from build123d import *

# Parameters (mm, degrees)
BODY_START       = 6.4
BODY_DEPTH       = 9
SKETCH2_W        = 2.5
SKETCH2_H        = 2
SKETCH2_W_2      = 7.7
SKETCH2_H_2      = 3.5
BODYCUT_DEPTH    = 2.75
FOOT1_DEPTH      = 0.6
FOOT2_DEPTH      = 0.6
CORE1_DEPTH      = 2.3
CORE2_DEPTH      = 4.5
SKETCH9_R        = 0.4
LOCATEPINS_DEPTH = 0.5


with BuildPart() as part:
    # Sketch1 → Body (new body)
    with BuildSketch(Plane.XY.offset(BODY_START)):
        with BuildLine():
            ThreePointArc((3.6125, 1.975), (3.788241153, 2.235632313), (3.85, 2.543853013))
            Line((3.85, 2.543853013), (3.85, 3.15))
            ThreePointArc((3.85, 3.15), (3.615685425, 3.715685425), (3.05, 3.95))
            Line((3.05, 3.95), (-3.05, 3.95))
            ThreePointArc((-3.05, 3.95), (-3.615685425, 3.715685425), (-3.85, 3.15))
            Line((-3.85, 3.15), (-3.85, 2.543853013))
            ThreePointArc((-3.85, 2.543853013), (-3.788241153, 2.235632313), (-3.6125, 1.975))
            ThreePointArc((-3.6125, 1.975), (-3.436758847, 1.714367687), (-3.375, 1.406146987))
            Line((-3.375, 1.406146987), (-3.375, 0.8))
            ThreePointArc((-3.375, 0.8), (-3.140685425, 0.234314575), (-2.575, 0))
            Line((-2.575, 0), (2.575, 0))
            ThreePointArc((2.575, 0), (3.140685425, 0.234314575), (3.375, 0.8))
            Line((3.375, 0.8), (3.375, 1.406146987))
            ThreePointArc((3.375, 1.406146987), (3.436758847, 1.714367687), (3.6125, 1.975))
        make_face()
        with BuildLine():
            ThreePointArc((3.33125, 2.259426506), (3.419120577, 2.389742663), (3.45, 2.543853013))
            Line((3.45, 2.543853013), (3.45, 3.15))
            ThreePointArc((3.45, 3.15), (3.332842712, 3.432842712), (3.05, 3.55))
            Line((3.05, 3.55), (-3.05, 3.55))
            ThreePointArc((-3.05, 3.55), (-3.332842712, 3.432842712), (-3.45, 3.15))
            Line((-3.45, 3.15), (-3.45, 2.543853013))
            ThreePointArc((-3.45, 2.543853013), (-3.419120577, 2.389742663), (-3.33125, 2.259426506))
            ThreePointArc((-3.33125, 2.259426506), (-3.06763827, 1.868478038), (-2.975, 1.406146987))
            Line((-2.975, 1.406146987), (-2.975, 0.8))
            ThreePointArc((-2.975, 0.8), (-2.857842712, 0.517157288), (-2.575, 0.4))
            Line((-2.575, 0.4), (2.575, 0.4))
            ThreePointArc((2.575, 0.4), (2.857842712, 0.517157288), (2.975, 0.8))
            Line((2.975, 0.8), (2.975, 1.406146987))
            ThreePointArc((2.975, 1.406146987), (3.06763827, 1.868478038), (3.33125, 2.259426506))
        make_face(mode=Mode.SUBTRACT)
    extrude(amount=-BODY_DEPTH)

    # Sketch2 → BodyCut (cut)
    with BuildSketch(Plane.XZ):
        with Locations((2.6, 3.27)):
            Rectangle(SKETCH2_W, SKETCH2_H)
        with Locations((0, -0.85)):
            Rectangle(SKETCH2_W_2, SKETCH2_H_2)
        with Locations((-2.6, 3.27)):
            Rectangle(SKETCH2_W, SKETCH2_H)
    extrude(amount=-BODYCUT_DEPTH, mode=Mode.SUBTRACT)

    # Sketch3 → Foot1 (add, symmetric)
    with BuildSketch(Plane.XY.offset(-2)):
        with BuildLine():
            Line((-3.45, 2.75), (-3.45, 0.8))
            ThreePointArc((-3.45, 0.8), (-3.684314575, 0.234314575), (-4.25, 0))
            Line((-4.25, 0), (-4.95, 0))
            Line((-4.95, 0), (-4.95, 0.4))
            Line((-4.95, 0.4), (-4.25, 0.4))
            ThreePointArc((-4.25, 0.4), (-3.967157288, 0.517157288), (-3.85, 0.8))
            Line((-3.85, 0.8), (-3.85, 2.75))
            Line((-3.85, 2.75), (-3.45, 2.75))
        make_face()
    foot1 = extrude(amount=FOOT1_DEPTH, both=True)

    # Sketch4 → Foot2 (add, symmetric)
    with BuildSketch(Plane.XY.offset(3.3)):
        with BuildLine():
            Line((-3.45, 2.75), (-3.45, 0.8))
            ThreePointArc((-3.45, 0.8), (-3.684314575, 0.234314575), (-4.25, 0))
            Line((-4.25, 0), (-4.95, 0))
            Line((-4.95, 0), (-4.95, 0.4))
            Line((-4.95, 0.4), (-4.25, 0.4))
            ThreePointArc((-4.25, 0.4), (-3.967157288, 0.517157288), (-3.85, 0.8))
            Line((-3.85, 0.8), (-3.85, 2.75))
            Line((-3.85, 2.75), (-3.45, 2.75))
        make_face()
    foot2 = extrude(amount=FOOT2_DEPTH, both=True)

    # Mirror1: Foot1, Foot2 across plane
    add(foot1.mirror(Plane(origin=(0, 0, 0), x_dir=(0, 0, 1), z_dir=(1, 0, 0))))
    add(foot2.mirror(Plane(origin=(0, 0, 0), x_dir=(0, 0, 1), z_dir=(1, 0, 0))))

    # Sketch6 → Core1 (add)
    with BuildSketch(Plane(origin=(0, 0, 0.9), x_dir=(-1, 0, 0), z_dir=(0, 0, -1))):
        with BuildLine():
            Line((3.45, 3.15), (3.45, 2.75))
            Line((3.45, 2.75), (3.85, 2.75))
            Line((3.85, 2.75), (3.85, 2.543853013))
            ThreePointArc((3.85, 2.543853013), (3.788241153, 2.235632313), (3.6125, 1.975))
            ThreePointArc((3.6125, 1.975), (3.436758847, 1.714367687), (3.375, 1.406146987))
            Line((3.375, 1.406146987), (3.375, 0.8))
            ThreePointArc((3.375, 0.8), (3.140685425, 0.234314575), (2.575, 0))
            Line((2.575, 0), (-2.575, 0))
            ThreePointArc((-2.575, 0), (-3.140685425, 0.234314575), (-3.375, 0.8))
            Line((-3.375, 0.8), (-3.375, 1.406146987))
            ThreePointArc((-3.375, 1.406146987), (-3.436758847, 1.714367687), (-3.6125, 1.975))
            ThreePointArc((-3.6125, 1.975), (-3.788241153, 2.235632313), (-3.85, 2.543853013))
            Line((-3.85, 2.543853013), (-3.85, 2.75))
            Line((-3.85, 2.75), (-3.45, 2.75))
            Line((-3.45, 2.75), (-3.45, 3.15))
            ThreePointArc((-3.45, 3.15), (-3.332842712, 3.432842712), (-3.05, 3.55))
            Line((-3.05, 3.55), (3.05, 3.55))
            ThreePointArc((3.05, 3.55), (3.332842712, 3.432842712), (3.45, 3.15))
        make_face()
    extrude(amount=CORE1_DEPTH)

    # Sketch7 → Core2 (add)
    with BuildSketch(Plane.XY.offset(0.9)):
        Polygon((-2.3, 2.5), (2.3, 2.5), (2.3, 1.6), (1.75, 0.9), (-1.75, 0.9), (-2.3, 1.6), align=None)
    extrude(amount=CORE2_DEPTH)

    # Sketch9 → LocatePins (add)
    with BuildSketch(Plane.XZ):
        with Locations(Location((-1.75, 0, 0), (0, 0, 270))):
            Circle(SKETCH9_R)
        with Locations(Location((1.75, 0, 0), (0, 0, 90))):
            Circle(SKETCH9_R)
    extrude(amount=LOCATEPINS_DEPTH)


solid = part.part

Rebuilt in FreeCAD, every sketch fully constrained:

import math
import FreeCAD as App
import Part
import Sketcher
from FreeCAD import Vector
Q = App.Units.Quantity

doc = App.newDocument("Part")
params = doc.addObject("Spreadsheet::Sheet", "Params")
for row, (alias, value) in enumerate([
    ("sketch1_radius", "0.8 mm"),
    ("sketch1_radius2", "0.4 mm"),
    ("sketch1_width", "6.1 mm"),
    ("sketch1_width2", "5.15 mm"),
    ("pad1_length", "9 mm"),
    ("sketch2_height", "2 mm"),
    ("sketch2_width", "2.5 mm"),
    ("sketch2_width2", "7.7 mm"),
    ("sketch2_height2", "3.5 mm"),
    ("pocket1_length", "2.75 mm"),
    ("sketch3_radius", "0.4 mm"),
    ("sketch3_radius2", "0.8 mm"),
    ("sketch3_width", "0.7 mm"),
    ("sketch3_height", "1.95 mm"),
    ("pad2_length", "1.2 mm"),
    ("sketch4_radius", "0.4 mm"),
    ("sketch4_radius2", "0.8 mm"),
    ("sketch4_width", "0.7 mm"),
    ("sketch4_height", "1.95 mm"),
    ("pad3_length", "1.2 mm"),
    ("sketch5_radius", "0.4 mm"),
    ("sketch5_radius2", "0.8 mm"),
    ("sketch5_width", "6.1 mm"),
    ("sketch5_width2", "5.15 mm"),
    ("pad4_length", "2.3 mm"),
    ("sketch6_width", "4.6 mm"),
    ("sketch6_width2", "3.5 mm"),
    ("sketch6_height", "0.9 mm"),
    ("pad5_length", "4.5 mm"),
    ("sketch7_diameter", "0.8 mm"),
    ("pad6_length", "0.5 mm"),
], start=1):
    params.set(f"A{row}", alias)
    params.set(f"B{row}", "=" + value)
    params.setAlias(f"B{row}", alias)

body = doc.addObject("PartDesign::Body", "Body")

sketch1 = doc.addObject("Sketcher::SketchObject", "Sketch")
body.addObject(sketch1)
sketch1.AttachmentSupport = (doc.XY_Plane, [""])
sketch1.MapMode = "FlatFace"
sketch1.AttachmentOffset = App.Placement(Vector(0, 0, 6.4), App.Rotation())
sketch1.addGeometry(Part.ArcOfCircle(Part.Circle(Vector(3.05, 2.543853, 0), Vector(0, 0, 1), 0.8), math.radians(-45.321736), math.radians(0)), False)
sketch1.addGeometry(Part.LineSegment(Vector(3.85, 2.543853, 0), Vector(3.85, 3.15, 0)), False)
sketch1.addGeometry(Part.ArcOfCircle(Part.Circle(Vector(3.05, 3.15, 0), Vector(0, 0, 1), 0.8), math.radians(0), math.radians(90)), False)
sketch1.addGeometry(Part.LineSegment(Vector(3.05, 3.95, 0), Vector(-3.05, 3.95, 0)), False)
sketch1.addGeometry(Part.ArcOfCircle(Part.Circle(Vector(-3.05, 3.15, 0), Vector(0, 0, 1), 0.8), math.radians(90), math.radians(180)), False)
sketch1.addGeometry(Part.LineSegment(Vector(-3.85, 3.15, 0), Vector(-3.85, 2.543853, 0)), False)
sketch1.addGeometry(Part.ArcOfCircle(Part.Circle(Vector(-3.05, 2.543853, 0), Vector(0, 0, 1), 0.8), math.radians(-180), math.radians(-134.678264)), False)
sketch1.addGeometry(Part.ArcOfCircle(Part.Circle(Vector(-4.175, 1.406147, 0), Vector(0, 0, 1), 0.8), math.radians(0), math.radians(45.321736)), False)
sketch1.addGeometry(Part.LineSegment(Vector(-3.375, 1.406147, 0), Vector(-3.375, 0.8, 0)), False)
sketch1.addGeometry(Part.ArcOfCircle(Part.Circle(Vector(-2.575, 0.8, 0), Vector(0, 0, 1), 0.8), math.radians(180), math.radians(270)), False)
sketch1.addGeometry(Part.LineSegment(Vector(-2.575, 0, 0), Vector(2.575, 0, 0)), False)
sketch1.addGeometry(Part.ArcOfCircle(Part.Circle(Vector(2.575, 0.8, 0), Vector(0, 0, 1), 0.8), math.radians(-90), math.radians(0)), False)
sketch1.addGeometry(Part.LineSegment(Vector(3.375, 0.8, 0), Vector(3.375, 1.406147, 0)), False)
sketch1.addGeometry(Part.ArcOfCircle(Part.Circle(Vector(4.175, 1.406147, 0), Vector(0, 0, 1), 0.8), math.radians(134.678264), math.radians(180)), False)
sketch1.addGeometry(Part.ArcOfCircle(Part.Circle(Vector(3.05, 2.543853, 0), Vector(0, 0, 1), 0.4), math.radians(-45.321736), math.radians(0)), False)
sketch1.addGeometry(Part.ArcOfCircle(Part.Circle(Vector(4.175, 1.406147, 0), Vector(0, 0, 1), 1.2), math.radians(134.678264), math.radians(180)), False)
sketch1.addGeometry(Part.LineSegment(Vector(2.975, 1.406147, 0), Vector(2.975, 0.8, 0)), False)
sketch1.addGeometry(Part.ArcOfCircle(Part.Circle(Vector(2.575, 0.8, 0), Vector(0, 0, 1), 0.4), math.radians(-90), math.radians(0)), False)
sketch1.addGeometry(Part.LineSegment(Vector(2.575, 0.4, 0), Vector(-2.575, 0.4, 0)), False)
sketch1.addGeometry(Part.ArcOfCircle(Part.Circle(Vector(-2.575, 0.8, 0), Vector(0, 0, 1), 0.4), math.radians(-180), math.radians(-90)), False)
sketch1.addGeometry(Part.LineSegment(Vector(-2.975, 0.8, 0), Vector(-2.975, 1.406147, 0)), False)
sketch1.addGeometry(Part.ArcOfCircle(Part.Circle(Vector(-4.175, 1.406147, 0), Vector(0, 0, 1), 1.2), math.radians(0), math.radians(45.321736)), False)
sketch1.addGeometry(Part.ArcOfCircle(Part.Circle(Vector(-3.05, 2.543853, 0), Vector(0, 0, 1), 0.4), math.radians(180), math.radians(225.321736)), False)
sketch1.addGeometry(Part.LineSegment(Vector(-3.45, 2.543853, 0), Vector(-3.45, 3.15, 0)), False)
sketch1.addGeometry(Part.ArcOfCircle(Part.Circle(Vector(-3.05, 3.15, 0), Vector(0, 0, 1), 0.4), math.radians(90), math.radians(180)), False)
sketch1.addGeometry(Part.LineSegment(Vector(-3.05, 3.55, 0), Vector(3.05, 3.55, 0)), False)
sketch1.addGeometry(Part.ArcOfCircle(Part.Circle(Vector(3.05, 3.15, 0), Vector(0, 0, 1), 0.4), math.radians(0), math.radians(90)), False)
sketch1.addGeometry(Part.LineSegment(Vector(3.45, 3.15, 0), Vector(3.45, 2.543853, 0)), False)
sketch1.addConstraint(Sketcher.Constraint("Tangent", 0, 2, 1, 1))
sketch1.addConstraint(Sketcher.Constraint("Tangent", 1, 2, 2, 1))
sketch1.addConstraint(Sketcher.Constraint("Tangent", 2, 2, 3, 1))
sketch1.addConstraint(Sketcher.Constraint("Tangent", 3, 2, 4, 1))
sketch1.addConstraint(Sketcher.Constraint("Tangent", 4, 2, 5, 1))
sketch1.addConstraint(Sketcher.Constraint("Tangent", 5, 2, 6, 1))
sketch1.addConstraint(Sketcher.Constraint("Tangent", 6, 2, 7, 2))
sketch1.addConstraint(Sketcher.Constraint("Tangent", 7, 1, 8, 1))
sketch1.addConstraint(Sketcher.Constraint("Tangent", 8, 2, 9, 1))
sketch1.addConstraint(Sketcher.Constraint("Tangent", 9, 2, 10, 1))
sketch1.addConstraint(Sketcher.Constraint("Tangent", 10, 2, 11, 1))
sketch1.addConstraint(Sketcher.Constraint("Tangent", 11, 2, 12, 1))
sketch1.addConstraint(Sketcher.Constraint("Tangent", 12, 2, 13, 2))
sketch1.addConstraint(Sketcher.Constraint("Tangent", 13, 1, 0, 1))
sketch1.addConstraint(Sketcher.Constraint("Tangent", 14, 1, 15, 1))
sketch1.addConstraint(Sketcher.Constraint("Tangent", 15, 2, 16, 1))
sketch1.addConstraint(Sketcher.Constraint("Tangent", 16, 2, 17, 2))
sketch1.addConstraint(Sketcher.Constraint("Tangent", 17, 1, 18, 1))
sketch1.addConstraint(Sketcher.Constraint("Tangent", 18, 2, 19, 2))
sketch1.addConstraint(Sketcher.Constraint("Tangent", 19, 1, 20, 1))
sketch1.addConstraint(Sketcher.Constraint("Tangent", 20, 2, 21, 1))
sketch1.addConstraint(Sketcher.Constraint("Tangent", 21, 2, 22, 2))
sketch1.addConstraint(Sketcher.Constraint("Tangent", 22, 1, 23, 1))
sketch1.addConstraint(Sketcher.Constraint("Tangent", 23, 2, 24, 2))
sketch1.addConstraint(Sketcher.Constraint("Tangent", 24, 1, 25, 1))
sketch1.addConstraint(Sketcher.Constraint("Tangent", 25, 2, 26, 2))
sketch1.addConstraint(Sketcher.Constraint("Tangent", 26, 1, 27, 1))
sketch1.addConstraint(Sketcher.Constraint("Tangent", 27, 2, 14, 2))
sketch1.addConstraint(Sketcher.Constraint("Vertical", 1))
sketch1.addConstraint(Sketcher.Constraint("Horizontal", 3))
sketch1.addConstraint(Sketcher.Constraint("Vertical", 5))
sketch1.addConstraint(Sketcher.Constraint("Vertical", 8))
sketch1.addConstraint(Sketcher.Constraint("Horizontal", 10))
sketch1.addConstraint(Sketcher.Constraint("Vertical", 12))
sketch1.addConstraint(Sketcher.Constraint("Vertical", 16))
sketch1.addConstraint(Sketcher.Constraint("Horizontal", 18))
sketch1.addConstraint(Sketcher.Constraint("Vertical", 20))
sketch1.addConstraint(Sketcher.Constraint("Vertical", 23))
sketch1.addConstraint(Sketcher.Constraint("Horizontal", 25))
sketch1.addConstraint(Sketcher.Constraint("Vertical", 27))
sketch1.addConstraint(Sketcher.Constraint("Coincident", 14, 3, 0, 3))
sketch1.addConstraint(Sketcher.Constraint("Coincident", 15, 3, 13, 3))
sketch1.addConstraint(Sketcher.Constraint("Coincident", 17, 3, 11, 3))
sketch1.addConstraint(Sketcher.Constraint("Coincident", 19, 3, 9, 3))
sketch1.addConstraint(Sketcher.Constraint("Coincident", 21, 3, 7, 3))
sketch1.addConstraint(Sketcher.Constraint("Coincident", 22, 3, 6, 3))
sketch1.addConstraint(Sketcher.Constraint("Coincident", 24, 3, 4, 3))
sketch1.addConstraint(Sketcher.Constraint("Equal", 0, 2))
sketch1.addConstraint(Sketcher.Constraint("Equal", 2, 4))
sketch1.addConstraint(Sketcher.Constraint("Equal", 4, 6))
sketch1.addConstraint(Sketcher.Constraint("Equal", 6, 7))
sketch1.addConstraint(Sketcher.Constraint("Equal", 7, 9))
sketch1.addConstraint(Sketcher.Constraint("Equal", 9, 11))
sketch1.addConstraint(Sketcher.Constraint("Equal", 11, 13))
sketch1.addConstraint(Sketcher.Constraint("Equal", 24, 26))
sketch1.addConstraint(Sketcher.Constraint("Symmetric", 9, 2, 10, 2, -1, 1))
sketch1.addConstraint(Sketcher.Constraint("Symmetric", 0, 3, 6, 3, -2))
sketch1.addConstraint(Sketcher.Constraint("Equal", 5, 8))
sketch1.addConstraint(Sketcher.Constraint("Radius", 0, Q("0.8 mm")))
sketch1.addConstraint(Sketcher.Constraint("Radius", 14, Q("0.4 mm")))
sketch1.addConstraint(Sketcher.Constraint("DistanceX", 3, 2, 3, 1, Q("6.1 mm")))
sketch1.addConstraint(Sketcher.Constraint("DistanceX", 10, 1, 10, 2, Q("5.15 mm")))
sketch1.addConstraint(Sketcher.Constraint("DistanceY", -1, 1, 2, 3, Q("3.15 mm")))
sketch1.setExpression("Constraints[58]", "Params.sketch1_radius")
sketch1.setExpression("Constraints[59]", "Params.sketch1_radius2")
sketch1.setExpression("Constraints[60]", "Params.sketch1_width")
sketch1.setExpression("Constraints[61]", "Params.sketch1_width2")
pad1 = doc.addObject("PartDesign::Pad", "Pad")
body.addObject(pad1)
pad1.Profile = sketch1
pad1.setExpression("Length", "Params.pad1_length")
pad1.Reversed = True

sketch2 = doc.addObject("Sketcher::SketchObject", "Sketch001")
body.addObject(sketch2)
sketch2.AttachmentSupport = (doc.XZ_Plane, [""])
sketch2.MapMode = "FlatFace"
sketch2.addGeometry(Part.LineSegment(Vector(1.35, 4.27, 0), Vector(1.35, 2.27, 0)), False)
sketch2.addGeometry(Part.LineSegment(Vector(1.35, 2.27, 0), Vector(3.85, 2.27, 0)), False)
sketch2.addGeometry(Part.LineSegment(Vector(3.85, 2.27, 0), Vector(3.85, 4.27, 0)), False)
sketch2.addGeometry(Part.LineSegment(Vector(3.85, 4.27, 0), Vector(1.35, 4.27, 0)), False)
sketch2.addGeometry(Part.LineSegment(Vector(-3.85, 0.9, 0), Vector(-3.85, -2.6, 0)), False)
sketch2.addGeometry(Part.LineSegment(Vector(-3.85, -2.6, 0), Vector(3.85, -2.6, 0)), False)
sketch2.addGeometry(Part.LineSegment(Vector(3.85, -2.6, 0), Vector(3.85, 0.9, 0)), False)
sketch2.addGeometry(Part.LineSegment(Vector(3.85, 0.9, 0), Vector(-3.85, 0.9, 0)), False)
sketch2.addGeometry(Part.LineSegment(Vector(-3.85, 4.27, 0), Vector(-3.85, 2.27, 0)), False)
sketch2.addGeometry(Part.LineSegment(Vector(-3.85, 2.27, 0), Vector(-1.35, 2.27, 0)), False)
sketch2.addGeometry(Part.LineSegment(Vector(-1.35, 2.27, 0), Vector(-1.35, 4.27, 0)), False)
sketch2.addGeometry(Part.LineSegment(Vector(-1.35, 4.27, 0), Vector(-3.85, 4.27, 0)), False)
sketch2.addConstraint(Sketcher.Constraint("Coincident", 0, 2, 1, 1))
sketch2.addConstraint(Sketcher.Constraint("Coincident", 1, 2, 2, 1))
sketch2.addConstraint(Sketcher.Constraint("Coincident", 2, 2, 3, 1))
sketch2.addConstraint(Sketcher.Constraint("Coincident", 3, 2, 0, 1))
sketch2.addConstraint(Sketcher.Constraint("Coincident", 4, 2, 5, 1))
sketch2.addConstraint(Sketcher.Constraint("Coincident", 5, 2, 6, 1))
sketch2.addConstraint(Sketcher.Constraint("Coincident", 6, 2, 7, 1))
sketch2.addConstraint(Sketcher.Constraint("Coincident", 7, 2, 4, 1))
sketch2.addConstraint(Sketcher.Constraint("Coincident", 8, 2, 9, 1))
sketch2.addConstraint(Sketcher.Constraint("Coincident", 9, 2, 10, 1))
sketch2.addConstraint(Sketcher.Constraint("Coincident", 10, 2, 11, 1))
sketch2.addConstraint(Sketcher.Constraint("Coincident", 11, 2, 8, 1))
sketch2.addConstraint(Sketcher.Constraint("Vertical", 0))
sketch2.addConstraint(Sketcher.Constraint("Horizontal", 1))
sketch2.addConstraint(Sketcher.Constraint("Vertical", 2))
sketch2.addConstraint(Sketcher.Constraint("Horizontal", 3))
sketch2.addConstraint(Sketcher.Constraint("Vertical", 4))
sketch2.addConstraint(Sketcher.Constraint("Horizontal", 5))
sketch2.addConstraint(Sketcher.Constraint("Vertical", 6))
sketch2.addConstraint(Sketcher.Constraint("Horizontal", 7))
sketch2.addConstraint(Sketcher.Constraint("Vertical", 8))
sketch2.addConstraint(Sketcher.Constraint("Horizontal", 9))
sketch2.addConstraint(Sketcher.Constraint("Vertical", 10))
sketch2.addConstraint(Sketcher.Constraint("Horizontal", 11))
sketch2.addConstraint(Sketcher.Constraint("Symmetric", 1, 2, 8, 2, -2))
sketch2.addConstraint(Sketcher.Constraint("Symmetric", 3, 2, 10, 2, -2))
sketch2.addConstraint(Sketcher.Constraint("Vertical", 2, 2, 5, 2))
sketch2.addConstraint(Sketcher.Constraint("Vertical", 7, 2, 8, 2))
sketch2.addConstraint(Sketcher.Constraint("DistanceY", 0, 2, 0, 1, Q("2 mm")))
sketch2.addConstraint(Sketcher.Constraint("DistanceX", 1, 1, 1, 2, Q("2.5 mm")))
sketch2.addConstraint(Sketcher.Constraint("DistanceX", 5, 1, 5, 2, Q("7.7 mm")))
sketch2.addConstraint(Sketcher.Constraint("DistanceY", 4, 2, 4, 1, Q("3.5 mm")))
sketch2.addConstraint(Sketcher.Constraint("DistanceY", 4, 2, -1, 1, Q("2.6 mm")))
sketch2.addConstraint(Sketcher.Constraint("DistanceY", -1, 1, 0, 2, Q("2.27 mm")))
sketch2.setExpression("Constraints[28]", "Params.sketch2_height")
sketch2.setExpression("Constraints[29]", "Params.sketch2_width")
sketch2.setExpression("Constraints[30]", "Params.sketch2_width2")
sketch2.setExpression("Constraints[31]", "Params.sketch2_height2")
pocket1 = doc.addObject("PartDesign::Pocket", "Pocket")
body.addObject(pocket1)
pocket1.Profile = sketch2
pocket1.setExpression("Length", "Params.pocket1_length")

sketch3 = doc.addObject("Sketcher::SketchObject", "Sketch002")
body.addObject(sketch3)
sketch3.AttachmentSupport = (doc.XY_Plane, [""])
sketch3.MapMode = "FlatFace"
sketch3.AttachmentOffset = App.Placement(Vector(0, 0, -2), App.Rotation())
sketch3.addGeometry(Part.LineSegment(Vector(-3.45, 0.8, 0), Vector(-3.45, 2.75, 0)), False)
sketch3.addGeometry(Part.LineSegment(Vector(-3.45, 2.75, 0), Vector(-3.85, 2.75, 0)), False)
sketch3.addGeometry(Part.LineSegment(Vector(-3.85, 2.75, 0), Vector(-3.85, 0.8, 0)), False)
sketch3.addGeometry(Part.ArcOfCircle(Part.Circle(Vector(-4.25, 0.8, 0), Vector(0, 0, 1), 0.4), math.radians(-90), math.radians(0)), False)
sketch3.addGeometry(Part.LineSegment(Vector(-4.25, 0.4, 0), Vector(-4.95, 0.4, 0)), False)
sketch3.addGeometry(Part.LineSegment(Vector(-4.95, 0.4, 0), Vector(-4.95, 0, 0)), False)
sketch3.addGeometry(Part.LineSegment(Vector(-4.95, 0, 0), Vector(-4.25, 0, 0)), False)
sketch3.addGeometry(Part.ArcOfCircle(Part.Circle(Vector(-4.25, 0.8, 0), Vector(0, 0, 1), 0.8), math.radians(-90), math.radians(0)), False)
sketch3.addConstraint(Sketcher.Constraint("Coincident", 0, 2, 1, 1))
sketch3.addConstraint(Sketcher.Constraint("Coincident", 1, 2, 2, 1))
sketch3.addConstraint(Sketcher.Constraint("Tangent", 2, 2, 3, 2))
sketch3.addConstraint(Sketcher.Constraint("Tangent", 3, 1, 4, 1))
sketch3.addConstraint(Sketcher.Constraint("Coincident", 4, 2, 5, 1))
sketch3.addConstraint(Sketcher.Constraint("Coincident", 5, 2, 6, 1))
sketch3.addConstraint(Sketcher.Constraint("Tangent", 6, 2, 7, 1))
sketch3.addConstraint(Sketcher.Constraint("Tangent", 7, 2, 0, 1))
sketch3.addConstraint(Sketcher.Constraint("Vertical", 0))
sketch3.addConstraint(Sketcher.Constraint("Horizontal", 1))
sketch3.addConstraint(Sketcher.Constraint("Vertical", 2))
sketch3.addConstraint(Sketcher.Constraint("Horizontal", 4))
sketch3.addConstraint(Sketcher.Constraint("Vertical", 5))
sketch3.addConstraint(Sketcher.Constraint("Horizontal", 6))
sketch3.addConstraint(Sketcher.Constraint("Coincident", 7, 3, 3, 3))
sketch3.addConstraint(Sketcher.Constraint("PointOnObject", 5, 2, -1))
sketch3.addConstraint(Sketcher.Constraint("Radius", 3, Q("0.4 mm")))
sketch3.addConstraint(Sketcher.Constraint("Radius", 7, Q("0.8 mm")))
sketch3.addConstraint(Sketcher.Constraint("DistanceX", 4, 2, 4, 1, Q("0.7 mm")))
sketch3.addConstraint(Sketcher.Constraint("DistanceY", 0, 1, 0, 2, Q("1.95 mm")))
sketch3.addConstraint(Sketcher.Constraint("DistanceX", 3, 3, -1, 1, Q("4.25 mm")))
sketch3.setExpression("Constraints[16]", "Params.sketch3_radius")
sketch3.setExpression("Constraints[17]", "Params.sketch3_radius2")
sketch3.setExpression("Constraints[18]", "Params.sketch3_width")
sketch3.setExpression("Constraints[19]", "Params.sketch3_height")
pad2 = doc.addObject("PartDesign::Pad", "Pad001")
body.addObject(pad2)
pad2.Profile = sketch3
pad2.setExpression("Length", "Params.pad2_length")
pad2.Midplane = True

sketch4 = doc.addObject("Sketcher::SketchObject", "Sketch003")
body.addObject(sketch4)
sketch4.AttachmentSupport = (doc.XY_Plane, [""])
sketch4.MapMode = "FlatFace"
sketch4.AttachmentOffset = App.Placement(Vector(0, 0, 3.3), App.Rotation())
sketch4.addGeometry(Part.LineSegment(Vector(-3.45, 0.8, 0), Vector(-3.45, 2.75, 0)), False)
sketch4.addGeometry(Part.LineSegment(Vector(-3.45, 2.75, 0), Vector(-3.85, 2.75, 0)), False)
sketch4.addGeometry(Part.LineSegment(Vector(-3.85, 2.75, 0), Vector(-3.85, 0.8, 0)), False)
sketch4.addGeometry(Part.ArcOfCircle(Part.Circle(Vector(-4.25, 0.8, 0), Vector(0, 0, 1), 0.4), math.radians(-90), math.radians(0)), False)
sketch4.addGeometry(Part.LineSegment(Vector(-4.25, 0.4, 0), Vector(-4.95, 0.4, 0)), False)
sketch4.addGeometry(Part.LineSegment(Vector(-4.95, 0.4, 0), Vector(-4.95, 0, 0)), False)
sketch4.addGeometry(Part.LineSegment(Vector(-4.95, 0, 0), Vector(-4.25, 0, 0)), False)
sketch4.addGeometry(Part.ArcOfCircle(Part.Circle(Vector(-4.25, 0.8, 0), Vector(0, 0, 1), 0.8), math.radians(-90), math.radians(0)), False)
sketch4.addConstraint(Sketcher.Constraint("Coincident", 0, 2, 1, 1))
sketch4.addConstraint(Sketcher.Constraint("Coincident", 1, 2, 2, 1))
sketch4.addConstraint(Sketcher.Constraint("Tangent", 2, 2, 3, 2))
sketch4.addConstraint(Sketcher.Constraint("Tangent", 3, 1, 4, 1))
sketch4.addConstraint(Sketcher.Constraint("Coincident", 4, 2, 5, 1))
sketch4.addConstraint(Sketcher.Constraint("Coincident", 5, 2, 6, 1))
sketch4.addConstraint(Sketcher.Constraint("Tangent", 6, 2, 7, 1))
sketch4.addConstraint(Sketcher.Constraint("Tangent", 7, 2, 0, 1))
sketch4.addConstraint(Sketcher.Constraint("Vertical", 0))
sketch4.addConstraint(Sketcher.Constraint("Horizontal", 1))
sketch4.addConstraint(Sketcher.Constraint("Vertical", 2))
sketch4.addConstraint(Sketcher.Constraint("Horizontal", 4))
sketch4.addConstraint(Sketcher.Constraint("Vertical", 5))
sketch4.addConstraint(Sketcher.Constraint("Horizontal", 6))
sketch4.addConstraint(Sketcher.Constraint("Coincident", 7, 3, 3, 3))
sketch4.addConstraint(Sketcher.Constraint("PointOnObject", 5, 2, -1))
sketch4.addConstraint(Sketcher.Constraint("Radius", 3, Q("0.4 mm")))
sketch4.addConstraint(Sketcher.Constraint("Radius", 7, Q("0.8 mm")))
sketch4.addConstraint(Sketcher.Constraint("DistanceX", 4, 2, 4, 1, Q("0.7 mm")))
sketch4.addConstraint(Sketcher.Constraint("DistanceY", 0, 1, 0, 2, Q("1.95 mm")))
sketch4.addConstraint(Sketcher.Constraint("DistanceX", 3, 3, -1, 1, Q("4.25 mm")))
sketch4.setExpression("Constraints[16]", "Params.sketch4_radius")
sketch4.setExpression("Constraints[17]", "Params.sketch4_radius2")
sketch4.setExpression("Constraints[18]", "Params.sketch4_width")
sketch4.setExpression("Constraints[19]", "Params.sketch4_height")
pad3 = doc.addObject("PartDesign::Pad", "Pad002")
body.addObject(pad3)
pad3.Profile = sketch4
pad3.setExpression("Length", "Params.pad3_length")
pad3.Midplane = True
doc.recompute()

mirrored = doc.addObject("PartDesign::Mirrored", "Mirrored")
body.addObject(mirrored)
mirrored.Originals = [pad2, pad3]
mirrored.MirrorPlane = (doc.YZ_Plane, [""])
body.Tip = mirrored

sketch5 = doc.addObject("Sketcher::SketchObject", "Sketch004")
body.addObject(sketch5)
sketch5.AttachmentSupport = (doc.XY_Plane, [""])
sketch5.MapMode = "FlatFace"
sketch5.AttachmentOffset = App.Placement(Vector(0, 0, 0.9), App.Rotation())
sketch5.addGeometry(Part.LineSegment(Vector(-3.45, 2.75, 0), Vector(-3.45, 3.15, 0)), False)
sketch5.addGeometry(Part.ArcOfCircle(Part.Circle(Vector(-3.05, 3.15, 0), Vector(0, 0, 1), 0.4), math.radians(90), math.radians(180)), False)
sketch5.addGeometry(Part.LineSegment(Vector(-3.05, 3.55, 0), Vector(3.05, 3.55, 0)), False)
sketch5.addGeometry(Part.ArcOfCircle(Part.Circle(Vector(3.05, 3.15, 0), Vector(0, 0, 1), 0.4), math.radians(0), math.radians(90)), False)
sketch5.addGeometry(Part.LineSegment(Vector(3.45, 3.15, 0), Vector(3.45, 2.75, 0)), False)
sketch5.addGeometry(Part.LineSegment(Vector(3.45, 2.75, 0), Vector(3.85, 2.75, 0)), False)
sketch5.addGeometry(Part.LineSegment(Vector(3.85, 2.75, 0), Vector(3.85, 2.543853, 0)), False)
sketch5.addGeometry(Part.ArcOfCircle(Part.Circle(Vector(3.05, 2.543853, 0), Vector(0, 0, 1), 0.8), math.radians(-45.321736), math.radians(0)), False)
sketch5.addGeometry(Part.ArcOfCircle(Part.Circle(Vector(4.175, 1.406147, 0), Vector(0, 0, 1), 0.8), math.radians(134.678264), math.radians(180)), False)
sketch5.addGeometry(Part.LineSegment(Vector(3.375, 1.406147, 0), Vector(3.375, 0.8, 0)), False)
sketch5.addGeometry(Part.ArcOfCircle(Part.Circle(Vector(2.575, 0.8, 0), Vector(0, 0, 1), 0.8), math.radians(-90), math.radians(0)), False)
sketch5.addGeometry(Part.LineSegment(Vector(2.575, 0, 0), Vector(-2.575, 0, 0)), False)
sketch5.addGeometry(Part.ArcOfCircle(Part.Circle(Vector(-2.575, 0.8, 0), Vector(0, 0, 1), 0.8), math.radians(180), math.radians(270)), False)
sketch5.addGeometry(Part.LineSegment(Vector(-3.375, 0.8, 0), Vector(-3.375, 1.406147, 0)), False)
sketch5.addGeometry(Part.ArcOfCircle(Part.Circle(Vector(-4.175, 1.406147, 0), Vector(0, 0, 1), 0.8), math.radians(0), math.radians(45.321736)), False)
sketch5.addGeometry(Part.ArcOfCircle(Part.Circle(Vector(-3.05, 2.543853, 0), Vector(0, 0, 1), 0.8), math.radians(-180), math.radians(-134.678264)), False)
sketch5.addGeometry(Part.LineSegment(Vector(-3.85, 2.543853, 0), Vector(-3.85, 2.75, 0)), False)
sketch5.addGeometry(Part.LineSegment(Vector(-3.85, 2.75, 0), Vector(-3.45, 2.75, 0)), False)
sketch5.addConstraint(Sketcher.Constraint("Tangent", 0, 2, 1, 2))
sketch5.addConstraint(Sketcher.Constraint("Tangent", 1, 1, 2, 1))
sketch5.addConstraint(Sketcher.Constraint("Tangent", 2, 2, 3, 2))
sketch5.addConstraint(Sketcher.Constraint("Tangent", 3, 1, 4, 1))
sketch5.addConstraint(Sketcher.Constraint("Coincident", 4, 2, 5, 1))
sketch5.addConstraint(Sketcher.Constraint("Coincident", 5, 2, 6, 1))
sketch5.addConstraint(Sketcher.Constraint("Tangent", 6, 2, 7, 2))
sketch5.addConstraint(Sketcher.Constraint("Tangent", 7, 1, 8, 1))
sketch5.addConstraint(Sketcher.Constraint("Tangent", 8, 2, 9, 1))
sketch5.addConstraint(Sketcher.Constraint("Tangent", 9, 2, 10, 2))
sketch5.addConstraint(Sketcher.Constraint("Tangent", 10, 1, 11, 1))
sketch5.addConstraint(Sketcher.Constraint("Tangent", 11, 2, 12, 2))
sketch5.addConstraint(Sketcher.Constraint("Tangent", 12, 1, 13, 1))
sketch5.addConstraint(Sketcher.Constraint("Tangent", 13, 2, 14, 1))
sketch5.addConstraint(Sketcher.Constraint("Tangent", 14, 2, 15, 2))
sketch5.addConstraint(Sketcher.Constraint("Tangent", 15, 1, 16, 1))
sketch5.addConstraint(Sketcher.Constraint("Coincident", 16, 2, 17, 1))
sketch5.addConstraint(Sketcher.Constraint("Coincident", 17, 2, 0, 1))
sketch5.addConstraint(Sketcher.Constraint("Vertical", 0))
sketch5.addConstraint(Sketcher.Constraint("Horizontal", 2))
sketch5.addConstraint(Sketcher.Constraint("Vertical", 4))
sketch5.addConstraint(Sketcher.Constraint("Horizontal", 5))
sketch5.addConstraint(Sketcher.Constraint("Vertical", 6))
sketch5.addConstraint(Sketcher.Constraint("Vertical", 9))
sketch5.addConstraint(Sketcher.Constraint("Horizontal", 11))
sketch5.addConstraint(Sketcher.Constraint("Vertical", 13))
sketch5.addConstraint(Sketcher.Constraint("Vertical", 16))
sketch5.addConstraint(Sketcher.Constraint("Horizontal", 17))
sketch5.addConstraint(Sketcher.Constraint("Equal", 1, 3))
sketch5.addConstraint(Sketcher.Constraint("Equal", 7, 8))
sketch5.addConstraint(Sketcher.Constraint("Equal", 8, 10))
sketch5.addConstraint(Sketcher.Constraint("Equal", 10, 12))
sketch5.addConstraint(Sketcher.Constraint("Equal", 12, 14))
sketch5.addConstraint(Sketcher.Constraint("Equal", 14, 15))
sketch5.addConstraint(Sketcher.Constraint("Symmetric", 10, 1, 11, 2, -1, 1))
sketch5.addConstraint(Sketcher.Constraint("Symmetric", 7, 3, 15, 3, -2))
sketch5.addConstraint(Sketcher.Constraint("Symmetric", 4, 2, 17, 2, -2))
sketch5.addConstraint(Sketcher.Constraint("Vertical", 3, 3, 7, 3))
sketch5.addConstraint(Sketcher.Constraint("Equal", 17, 0))
sketch5.addConstraint(Sketcher.Constraint("Radius", 1, Q("0.4 mm")))
sketch5.addConstraint(Sketcher.Constraint("Radius", 7, Q("0.8 mm")))
sketch5.addConstraint(Sketcher.Constraint("DistanceX", 2, 1, 2, 2, Q("6.1 mm")))
sketch5.addConstraint(Sketcher.Constraint("DistanceX", 11, 2, 11, 1, Q("5.15 mm")))
sketch5.addConstraint(Sketcher.Constraint("DistanceY", -1, 1, 1, 3, Q("3.15 mm")))
sketch5.addConstraint(Sketcher.Constraint("DistanceY", -1, 1, 7, 1, Q("1.975 mm")))
sketch5.setExpression("Constraints[39]", "Params.sketch5_radius")
sketch5.setExpression("Constraints[40]", "Params.sketch5_radius2")
sketch5.setExpression("Constraints[41]", "Params.sketch5_width")
sketch5.setExpression("Constraints[42]", "Params.sketch5_width2")
pad4 = doc.addObject("PartDesign::Pad", "Pad003")
body.addObject(pad4)
pad4.Profile = sketch5
pad4.setExpression("Length", "Params.pad4_length")
pad4.Reversed = True

sketch6 = doc.addObject("Sketcher::SketchObject", "Sketch005")
body.addObject(sketch6)
sketch6.AttachmentSupport = (doc.XY_Plane, [""])
sketch6.MapMode = "FlatFace"
sketch6.AttachmentOffset = App.Placement(Vector(0, 0, 0.9), App.Rotation())
sketch6.addGeometry(Part.LineSegment(Vector(2.3, 2.5, 0), Vector(-2.3, 2.5, 0)), False)
sketch6.addGeometry(Part.LineSegment(Vector(-2.3, 2.5, 0), Vector(-2.3, 1.6, 0)), False)
sketch6.addGeometry(Part.LineSegment(Vector(-2.3, 1.6, 0), Vector(-1.75, 0.9, 0)), False)
sketch6.addGeometry(Part.LineSegment(Vector(-1.75, 0.9, 0), Vector(1.75, 0.9, 0)), False)
sketch6.addGeometry(Part.LineSegment(Vector(1.75, 0.9, 0), Vector(2.3, 1.6, 0)), False)
sketch6.addGeometry(Part.LineSegment(Vector(2.3, 1.6, 0), Vector(2.3, 2.5, 0)), False)
sketch6.addConstraint(Sketcher.Constraint("Coincident", 0, 2, 1, 1))
sketch6.addConstraint(Sketcher.Constraint("Coincident", 1, 2, 2, 1))
sketch6.addConstraint(Sketcher.Constraint("Coincident", 2, 2, 3, 1))
sketch6.addConstraint(Sketcher.Constraint("Coincident", 3, 2, 4, 1))
sketch6.addConstraint(Sketcher.Constraint("Coincident", 4, 2, 5, 1))
sketch6.addConstraint(Sketcher.Constraint("Coincident", 5, 2, 0, 1))
sketch6.addConstraint(Sketcher.Constraint("Horizontal", 0))
sketch6.addConstraint(Sketcher.Constraint("Vertical", 1))
sketch6.addConstraint(Sketcher.Constraint("Horizontal", 3))
sketch6.addConstraint(Sketcher.Constraint("Vertical", 5))
sketch6.addConstraint(Sketcher.Constraint("Symmetric", 1, 2, 4, 2, -2))
sketch6.addConstraint(Sketcher.Constraint("Equal", 2, 4))
sketch6.addConstraint(Sketcher.Constraint("DistanceX", 0, 2, 0, 1, Q("4.6 mm")))
sketch6.addConstraint(Sketcher.Constraint("DistanceX", 3, 1, 3, 2, Q("3.5 mm")))
sketch6.addConstraint(Sketcher.Constraint("DistanceY", 1, 2, 1, 1, Q("0.9 mm")))
sketch6.addConstraint(Sketcher.Constraint("DistanceY", -1, 1, 0, 2, Q("2.5 mm")))
sketch6.addConstraint(Sketcher.Constraint("DistanceY", -1, 1, 2, 2, Q("0.9 mm")))
sketch6.setExpression("Constraints[12]", "Params.sketch6_width")
sketch6.setExpression("Constraints[13]", "Params.sketch6_width2")
sketch6.setExpression("Constraints[14]", "Params.sketch6_height")
pad5 = doc.addObject("PartDesign::Pad", "Pad004")
body.addObject(pad5)
pad5.Profile = sketch6
pad5.setExpression("Length", "Params.pad5_length")

sketch7 = doc.addObject("Sketcher::SketchObject", "Sketch006")
body.addObject(sketch7)
sketch7.AttachmentSupport = (doc.XZ_Plane, [""])
sketch7.MapMode = "FlatFace"
sketch7.addGeometry(Part.Circle(Vector(-1.75, 0, 0), Vector(0, 0, 1), 0.4), False)
sketch7.addGeometry(Part.Circle(Vector(1.75, 0, 0), Vector(0, 0, 1), 0.4), False)
sketch7.addConstraint(Sketcher.Constraint("Equal", 0, 1))
sketch7.addConstraint(Sketcher.Constraint("Symmetric", 0, 3, 1, 3, -1, 1))
sketch7.addConstraint(Sketcher.Constraint("PointOnObject", 0, 3, -1))
sketch7.addConstraint(Sketcher.Constraint("Diameter", 0, Q("0.8 mm")))
sketch7.addConstraint(Sketcher.Constraint("DistanceX", 0, 3, 1, 3, Q("3.5 mm")))
sketch7.setExpression("Constraints[3]", "Params.sketch7_diameter")
pad6 = doc.addObject("PartDesign::Pad", "Pad005")
body.addObject(pad6)
pad6.Profile = sketch7
pad6.setExpression("Length", "Params.pad6_length")

doc.recompute()
